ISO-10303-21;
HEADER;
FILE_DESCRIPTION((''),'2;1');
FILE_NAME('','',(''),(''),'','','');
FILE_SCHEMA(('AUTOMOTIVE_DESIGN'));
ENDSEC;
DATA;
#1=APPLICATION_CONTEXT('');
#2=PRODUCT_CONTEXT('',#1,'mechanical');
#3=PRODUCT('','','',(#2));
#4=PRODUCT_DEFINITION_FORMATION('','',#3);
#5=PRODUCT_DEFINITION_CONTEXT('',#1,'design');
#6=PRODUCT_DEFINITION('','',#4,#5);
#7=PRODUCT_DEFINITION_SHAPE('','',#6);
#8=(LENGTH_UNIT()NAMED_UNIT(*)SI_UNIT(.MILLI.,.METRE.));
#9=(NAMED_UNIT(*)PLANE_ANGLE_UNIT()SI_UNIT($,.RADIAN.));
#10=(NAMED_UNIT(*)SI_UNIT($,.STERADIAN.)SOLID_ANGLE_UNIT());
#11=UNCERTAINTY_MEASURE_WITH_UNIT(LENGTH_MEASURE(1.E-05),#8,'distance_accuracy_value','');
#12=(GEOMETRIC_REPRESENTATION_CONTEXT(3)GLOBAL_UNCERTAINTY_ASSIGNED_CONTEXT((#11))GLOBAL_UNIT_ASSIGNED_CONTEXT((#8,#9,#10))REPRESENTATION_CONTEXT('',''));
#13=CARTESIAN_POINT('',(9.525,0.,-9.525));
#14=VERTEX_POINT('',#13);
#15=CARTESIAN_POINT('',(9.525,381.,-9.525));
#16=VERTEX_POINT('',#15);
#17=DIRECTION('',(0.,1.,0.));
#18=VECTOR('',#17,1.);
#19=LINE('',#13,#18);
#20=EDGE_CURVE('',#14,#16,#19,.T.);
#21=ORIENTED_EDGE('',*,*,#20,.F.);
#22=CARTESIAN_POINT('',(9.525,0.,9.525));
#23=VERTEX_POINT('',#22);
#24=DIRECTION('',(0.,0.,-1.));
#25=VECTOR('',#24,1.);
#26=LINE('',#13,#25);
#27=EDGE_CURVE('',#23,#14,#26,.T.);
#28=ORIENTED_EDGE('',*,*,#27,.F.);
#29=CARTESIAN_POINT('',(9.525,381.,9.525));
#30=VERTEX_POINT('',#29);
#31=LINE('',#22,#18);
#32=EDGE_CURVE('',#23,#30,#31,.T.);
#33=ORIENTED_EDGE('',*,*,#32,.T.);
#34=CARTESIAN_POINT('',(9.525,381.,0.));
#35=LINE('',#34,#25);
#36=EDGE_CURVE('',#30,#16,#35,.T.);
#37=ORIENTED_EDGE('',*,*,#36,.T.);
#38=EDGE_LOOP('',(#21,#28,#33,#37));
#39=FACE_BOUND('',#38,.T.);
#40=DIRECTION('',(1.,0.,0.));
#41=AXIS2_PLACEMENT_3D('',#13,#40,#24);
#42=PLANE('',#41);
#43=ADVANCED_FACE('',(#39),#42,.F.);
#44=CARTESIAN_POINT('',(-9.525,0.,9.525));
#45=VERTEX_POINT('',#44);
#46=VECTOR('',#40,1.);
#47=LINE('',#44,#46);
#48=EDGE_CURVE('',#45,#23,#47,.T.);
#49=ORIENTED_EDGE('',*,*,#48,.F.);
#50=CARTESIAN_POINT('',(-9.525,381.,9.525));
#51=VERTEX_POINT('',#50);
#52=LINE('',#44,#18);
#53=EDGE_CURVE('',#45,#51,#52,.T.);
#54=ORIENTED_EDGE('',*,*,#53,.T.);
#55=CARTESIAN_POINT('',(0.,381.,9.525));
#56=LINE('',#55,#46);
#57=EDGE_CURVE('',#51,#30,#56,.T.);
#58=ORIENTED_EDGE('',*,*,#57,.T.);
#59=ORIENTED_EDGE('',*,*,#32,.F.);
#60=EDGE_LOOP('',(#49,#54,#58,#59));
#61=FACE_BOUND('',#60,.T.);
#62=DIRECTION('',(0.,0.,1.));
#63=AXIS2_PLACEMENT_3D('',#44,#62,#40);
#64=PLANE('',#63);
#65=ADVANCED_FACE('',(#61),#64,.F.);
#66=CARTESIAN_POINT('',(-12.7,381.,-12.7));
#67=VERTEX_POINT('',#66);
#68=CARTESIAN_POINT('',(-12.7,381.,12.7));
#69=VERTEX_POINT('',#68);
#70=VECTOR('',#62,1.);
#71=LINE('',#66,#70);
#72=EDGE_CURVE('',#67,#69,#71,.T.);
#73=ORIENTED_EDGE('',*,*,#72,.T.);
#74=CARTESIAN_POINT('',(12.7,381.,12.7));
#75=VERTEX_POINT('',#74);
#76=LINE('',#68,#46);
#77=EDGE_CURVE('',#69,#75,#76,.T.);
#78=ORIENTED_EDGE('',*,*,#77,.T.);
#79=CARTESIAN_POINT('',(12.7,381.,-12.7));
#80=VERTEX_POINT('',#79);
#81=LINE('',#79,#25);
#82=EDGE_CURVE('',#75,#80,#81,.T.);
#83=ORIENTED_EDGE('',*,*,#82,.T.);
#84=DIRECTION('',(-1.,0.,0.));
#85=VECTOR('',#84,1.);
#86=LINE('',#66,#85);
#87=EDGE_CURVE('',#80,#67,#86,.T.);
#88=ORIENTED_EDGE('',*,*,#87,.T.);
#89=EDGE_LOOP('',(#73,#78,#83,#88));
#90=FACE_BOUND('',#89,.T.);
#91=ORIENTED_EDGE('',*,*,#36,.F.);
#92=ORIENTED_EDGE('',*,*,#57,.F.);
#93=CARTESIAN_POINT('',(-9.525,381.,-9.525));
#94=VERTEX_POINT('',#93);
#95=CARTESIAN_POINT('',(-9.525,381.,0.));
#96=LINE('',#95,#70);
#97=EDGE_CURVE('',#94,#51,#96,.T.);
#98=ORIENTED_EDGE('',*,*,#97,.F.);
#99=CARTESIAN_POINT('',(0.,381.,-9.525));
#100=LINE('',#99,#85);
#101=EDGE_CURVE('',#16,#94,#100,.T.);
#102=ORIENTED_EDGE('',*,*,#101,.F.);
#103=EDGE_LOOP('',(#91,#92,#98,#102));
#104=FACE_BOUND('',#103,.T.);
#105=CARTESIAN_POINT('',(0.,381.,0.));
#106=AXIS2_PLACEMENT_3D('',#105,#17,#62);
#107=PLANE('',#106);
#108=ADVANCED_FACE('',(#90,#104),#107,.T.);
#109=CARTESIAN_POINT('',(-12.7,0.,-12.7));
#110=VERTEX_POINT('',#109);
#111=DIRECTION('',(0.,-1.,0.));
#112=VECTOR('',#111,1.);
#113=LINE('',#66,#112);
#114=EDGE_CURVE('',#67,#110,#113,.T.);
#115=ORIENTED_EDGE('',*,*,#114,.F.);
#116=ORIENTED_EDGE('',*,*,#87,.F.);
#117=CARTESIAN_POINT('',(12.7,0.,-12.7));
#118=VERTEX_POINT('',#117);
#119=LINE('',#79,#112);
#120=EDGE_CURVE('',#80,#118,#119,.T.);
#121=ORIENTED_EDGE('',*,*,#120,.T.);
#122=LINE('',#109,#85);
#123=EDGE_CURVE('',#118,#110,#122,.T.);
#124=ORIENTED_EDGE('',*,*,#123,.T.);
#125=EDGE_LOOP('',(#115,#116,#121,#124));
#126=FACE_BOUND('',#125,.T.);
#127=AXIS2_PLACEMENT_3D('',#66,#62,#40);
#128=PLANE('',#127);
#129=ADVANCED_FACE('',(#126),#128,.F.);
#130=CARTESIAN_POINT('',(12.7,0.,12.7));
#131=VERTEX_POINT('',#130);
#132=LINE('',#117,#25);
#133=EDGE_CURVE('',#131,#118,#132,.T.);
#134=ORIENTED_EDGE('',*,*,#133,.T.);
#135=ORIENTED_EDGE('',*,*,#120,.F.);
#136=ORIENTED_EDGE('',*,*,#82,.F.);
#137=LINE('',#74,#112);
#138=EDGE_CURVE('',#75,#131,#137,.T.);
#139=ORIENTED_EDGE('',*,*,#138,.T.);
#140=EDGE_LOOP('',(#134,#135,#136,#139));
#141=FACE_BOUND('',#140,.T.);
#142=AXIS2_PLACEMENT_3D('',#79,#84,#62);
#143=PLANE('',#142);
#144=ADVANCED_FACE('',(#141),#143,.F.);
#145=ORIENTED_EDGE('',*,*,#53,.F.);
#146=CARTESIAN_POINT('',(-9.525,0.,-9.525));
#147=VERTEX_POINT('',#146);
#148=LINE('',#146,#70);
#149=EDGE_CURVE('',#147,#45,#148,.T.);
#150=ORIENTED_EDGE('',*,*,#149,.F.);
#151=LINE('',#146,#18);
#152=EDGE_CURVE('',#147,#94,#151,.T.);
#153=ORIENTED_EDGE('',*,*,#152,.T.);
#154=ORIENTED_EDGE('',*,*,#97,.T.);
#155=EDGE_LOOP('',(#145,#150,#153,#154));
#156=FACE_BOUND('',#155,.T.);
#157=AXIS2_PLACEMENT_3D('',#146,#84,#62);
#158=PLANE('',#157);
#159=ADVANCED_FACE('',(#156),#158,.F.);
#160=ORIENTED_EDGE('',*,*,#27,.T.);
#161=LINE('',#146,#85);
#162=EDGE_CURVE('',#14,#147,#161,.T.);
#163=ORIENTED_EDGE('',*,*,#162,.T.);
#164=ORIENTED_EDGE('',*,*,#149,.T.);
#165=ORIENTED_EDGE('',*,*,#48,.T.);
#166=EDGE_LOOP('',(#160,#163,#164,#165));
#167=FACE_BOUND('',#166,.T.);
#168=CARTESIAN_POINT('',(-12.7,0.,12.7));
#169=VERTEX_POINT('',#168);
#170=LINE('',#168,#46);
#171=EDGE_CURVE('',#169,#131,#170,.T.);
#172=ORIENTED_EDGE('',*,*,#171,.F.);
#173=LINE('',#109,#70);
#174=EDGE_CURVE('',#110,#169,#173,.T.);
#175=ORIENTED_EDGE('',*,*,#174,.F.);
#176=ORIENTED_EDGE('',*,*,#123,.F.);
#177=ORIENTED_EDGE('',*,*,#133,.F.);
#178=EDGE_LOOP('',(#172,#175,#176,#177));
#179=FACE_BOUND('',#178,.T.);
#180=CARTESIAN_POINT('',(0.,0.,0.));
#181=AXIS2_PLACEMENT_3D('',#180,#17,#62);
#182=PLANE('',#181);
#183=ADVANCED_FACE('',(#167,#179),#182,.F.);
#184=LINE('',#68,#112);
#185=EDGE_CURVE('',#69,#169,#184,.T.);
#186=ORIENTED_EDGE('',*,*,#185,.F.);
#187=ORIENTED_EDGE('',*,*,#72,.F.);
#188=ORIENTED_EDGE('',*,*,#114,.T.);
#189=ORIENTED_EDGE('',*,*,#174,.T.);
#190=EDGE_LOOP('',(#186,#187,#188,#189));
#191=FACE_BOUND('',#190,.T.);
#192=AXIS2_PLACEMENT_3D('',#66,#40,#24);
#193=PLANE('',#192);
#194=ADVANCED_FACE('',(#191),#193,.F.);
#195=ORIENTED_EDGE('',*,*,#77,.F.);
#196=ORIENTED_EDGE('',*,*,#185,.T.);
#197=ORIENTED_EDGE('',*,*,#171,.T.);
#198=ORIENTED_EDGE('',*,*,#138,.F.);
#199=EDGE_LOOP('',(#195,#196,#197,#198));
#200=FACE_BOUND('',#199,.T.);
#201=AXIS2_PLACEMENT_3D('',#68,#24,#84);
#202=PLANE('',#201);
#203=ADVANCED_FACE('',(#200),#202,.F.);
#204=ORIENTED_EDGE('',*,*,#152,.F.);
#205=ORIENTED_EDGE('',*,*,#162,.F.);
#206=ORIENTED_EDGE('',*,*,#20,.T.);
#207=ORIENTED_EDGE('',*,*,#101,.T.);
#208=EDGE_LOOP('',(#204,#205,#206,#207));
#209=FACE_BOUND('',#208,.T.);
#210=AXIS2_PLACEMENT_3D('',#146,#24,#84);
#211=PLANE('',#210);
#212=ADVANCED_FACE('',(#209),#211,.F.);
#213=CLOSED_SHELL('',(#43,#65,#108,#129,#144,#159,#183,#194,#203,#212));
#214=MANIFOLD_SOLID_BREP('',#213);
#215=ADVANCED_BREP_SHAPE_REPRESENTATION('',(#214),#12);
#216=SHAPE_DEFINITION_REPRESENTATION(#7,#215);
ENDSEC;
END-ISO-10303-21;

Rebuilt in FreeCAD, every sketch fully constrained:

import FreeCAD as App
import Part
import Sketcher
from FreeCAD import Vector
Q = App.Units.Quantity


def add_polygon(sketch, points):
    """Adds a closed chain of lines whose ends are joined by coincident constraints."""
    first, n = sketch.GeometryCount, len(points)
    for a, b in zip(points, points[1:] + points[:1]):
        sketch.addGeometry(Part.LineSegment(App.Vector(*a, 0), App.Vector(*b, 0)), False)
    for i in range(n):
        sketch.addConstraint(Sketcher.Constraint("Coincident", first + i, 2, first + (i + 1) % n, 1))

doc = App.newDocument("Part")
body = doc.addObject("PartDesign::Body", "Body")

sketch1 = doc.addObject("Sketcher::SketchObject", "Sketch")
body.addObject(sketch1)
sketch1.AttachmentSupport = (doc.XZ_Plane, [""])
sketch1.MapMode = "FlatFace"
add_polygon(sketch1, [(-13, -13), (-13, 13), (13, 13), (13, -13)])
sketch1.addConstraint([
    Sketcher.Constraint("Vertical", 0),
    Sketcher.Constraint("Horizontal", 1),
    Sketcher.Constraint("Vertical", 2),
    Sketcher.Constraint("Horizontal", 3),
    Sketcher.Constraint("Symmetric", 0, 2, 2, 2, -1, 1),
    Sketcher.Constraint("Equal", 3, 0),
    Sketcher.Constraint("DistanceX", 1, 1, 1, 2, Q("1 in")),
])
pad1 = doc.addObject("PartDesign::Pad", "Pad")
body.addObject(pad1)
pad1.Profile = sketch1
pad1.Length = Q("15 in")
pad1.Reversed = True

sketch2 = doc.addObject("Sketcher::SketchObject", "Sketch001")
body.addObject(sketch2)
sketch2.AttachmentSupport = (doc.XZ_Plane, [""])
sketch2.MapMode = "FlatFace"
sketch2.AttachmentOffset = App.Placement(Vector(0, 0, -15 * 25.4), App.Rotation())
add_polygon(sketch2, [(-10, -10), (-10, 10), (10, 10), (10, -10)])
sketch2.addConstraint([
    Sketcher.Constraint("Vertical", 0),
    Sketcher.Constraint("Horizontal", 1),
    Sketcher.Constraint("Vertical", 2),
    Sketcher.Constraint("Horizontal", 3),
    Sketcher.Constraint("Symmetric", 0, 2, 2, 2, -1, 1),
    Sketcher.Constraint("Equal", 3, 0),
    Sketcher.Constraint("DistanceX", 1, 1, 1, 2, Q("0.75 in")),
])
pocket1 = doc.addObject("PartDesign::Pocket", "Pocket")
body.addObject(pocket1)
pocket1.Profile = sketch2
pocket1.Type = "ThroughAll"
pocket1.Midplane = True

doc.recompute()
